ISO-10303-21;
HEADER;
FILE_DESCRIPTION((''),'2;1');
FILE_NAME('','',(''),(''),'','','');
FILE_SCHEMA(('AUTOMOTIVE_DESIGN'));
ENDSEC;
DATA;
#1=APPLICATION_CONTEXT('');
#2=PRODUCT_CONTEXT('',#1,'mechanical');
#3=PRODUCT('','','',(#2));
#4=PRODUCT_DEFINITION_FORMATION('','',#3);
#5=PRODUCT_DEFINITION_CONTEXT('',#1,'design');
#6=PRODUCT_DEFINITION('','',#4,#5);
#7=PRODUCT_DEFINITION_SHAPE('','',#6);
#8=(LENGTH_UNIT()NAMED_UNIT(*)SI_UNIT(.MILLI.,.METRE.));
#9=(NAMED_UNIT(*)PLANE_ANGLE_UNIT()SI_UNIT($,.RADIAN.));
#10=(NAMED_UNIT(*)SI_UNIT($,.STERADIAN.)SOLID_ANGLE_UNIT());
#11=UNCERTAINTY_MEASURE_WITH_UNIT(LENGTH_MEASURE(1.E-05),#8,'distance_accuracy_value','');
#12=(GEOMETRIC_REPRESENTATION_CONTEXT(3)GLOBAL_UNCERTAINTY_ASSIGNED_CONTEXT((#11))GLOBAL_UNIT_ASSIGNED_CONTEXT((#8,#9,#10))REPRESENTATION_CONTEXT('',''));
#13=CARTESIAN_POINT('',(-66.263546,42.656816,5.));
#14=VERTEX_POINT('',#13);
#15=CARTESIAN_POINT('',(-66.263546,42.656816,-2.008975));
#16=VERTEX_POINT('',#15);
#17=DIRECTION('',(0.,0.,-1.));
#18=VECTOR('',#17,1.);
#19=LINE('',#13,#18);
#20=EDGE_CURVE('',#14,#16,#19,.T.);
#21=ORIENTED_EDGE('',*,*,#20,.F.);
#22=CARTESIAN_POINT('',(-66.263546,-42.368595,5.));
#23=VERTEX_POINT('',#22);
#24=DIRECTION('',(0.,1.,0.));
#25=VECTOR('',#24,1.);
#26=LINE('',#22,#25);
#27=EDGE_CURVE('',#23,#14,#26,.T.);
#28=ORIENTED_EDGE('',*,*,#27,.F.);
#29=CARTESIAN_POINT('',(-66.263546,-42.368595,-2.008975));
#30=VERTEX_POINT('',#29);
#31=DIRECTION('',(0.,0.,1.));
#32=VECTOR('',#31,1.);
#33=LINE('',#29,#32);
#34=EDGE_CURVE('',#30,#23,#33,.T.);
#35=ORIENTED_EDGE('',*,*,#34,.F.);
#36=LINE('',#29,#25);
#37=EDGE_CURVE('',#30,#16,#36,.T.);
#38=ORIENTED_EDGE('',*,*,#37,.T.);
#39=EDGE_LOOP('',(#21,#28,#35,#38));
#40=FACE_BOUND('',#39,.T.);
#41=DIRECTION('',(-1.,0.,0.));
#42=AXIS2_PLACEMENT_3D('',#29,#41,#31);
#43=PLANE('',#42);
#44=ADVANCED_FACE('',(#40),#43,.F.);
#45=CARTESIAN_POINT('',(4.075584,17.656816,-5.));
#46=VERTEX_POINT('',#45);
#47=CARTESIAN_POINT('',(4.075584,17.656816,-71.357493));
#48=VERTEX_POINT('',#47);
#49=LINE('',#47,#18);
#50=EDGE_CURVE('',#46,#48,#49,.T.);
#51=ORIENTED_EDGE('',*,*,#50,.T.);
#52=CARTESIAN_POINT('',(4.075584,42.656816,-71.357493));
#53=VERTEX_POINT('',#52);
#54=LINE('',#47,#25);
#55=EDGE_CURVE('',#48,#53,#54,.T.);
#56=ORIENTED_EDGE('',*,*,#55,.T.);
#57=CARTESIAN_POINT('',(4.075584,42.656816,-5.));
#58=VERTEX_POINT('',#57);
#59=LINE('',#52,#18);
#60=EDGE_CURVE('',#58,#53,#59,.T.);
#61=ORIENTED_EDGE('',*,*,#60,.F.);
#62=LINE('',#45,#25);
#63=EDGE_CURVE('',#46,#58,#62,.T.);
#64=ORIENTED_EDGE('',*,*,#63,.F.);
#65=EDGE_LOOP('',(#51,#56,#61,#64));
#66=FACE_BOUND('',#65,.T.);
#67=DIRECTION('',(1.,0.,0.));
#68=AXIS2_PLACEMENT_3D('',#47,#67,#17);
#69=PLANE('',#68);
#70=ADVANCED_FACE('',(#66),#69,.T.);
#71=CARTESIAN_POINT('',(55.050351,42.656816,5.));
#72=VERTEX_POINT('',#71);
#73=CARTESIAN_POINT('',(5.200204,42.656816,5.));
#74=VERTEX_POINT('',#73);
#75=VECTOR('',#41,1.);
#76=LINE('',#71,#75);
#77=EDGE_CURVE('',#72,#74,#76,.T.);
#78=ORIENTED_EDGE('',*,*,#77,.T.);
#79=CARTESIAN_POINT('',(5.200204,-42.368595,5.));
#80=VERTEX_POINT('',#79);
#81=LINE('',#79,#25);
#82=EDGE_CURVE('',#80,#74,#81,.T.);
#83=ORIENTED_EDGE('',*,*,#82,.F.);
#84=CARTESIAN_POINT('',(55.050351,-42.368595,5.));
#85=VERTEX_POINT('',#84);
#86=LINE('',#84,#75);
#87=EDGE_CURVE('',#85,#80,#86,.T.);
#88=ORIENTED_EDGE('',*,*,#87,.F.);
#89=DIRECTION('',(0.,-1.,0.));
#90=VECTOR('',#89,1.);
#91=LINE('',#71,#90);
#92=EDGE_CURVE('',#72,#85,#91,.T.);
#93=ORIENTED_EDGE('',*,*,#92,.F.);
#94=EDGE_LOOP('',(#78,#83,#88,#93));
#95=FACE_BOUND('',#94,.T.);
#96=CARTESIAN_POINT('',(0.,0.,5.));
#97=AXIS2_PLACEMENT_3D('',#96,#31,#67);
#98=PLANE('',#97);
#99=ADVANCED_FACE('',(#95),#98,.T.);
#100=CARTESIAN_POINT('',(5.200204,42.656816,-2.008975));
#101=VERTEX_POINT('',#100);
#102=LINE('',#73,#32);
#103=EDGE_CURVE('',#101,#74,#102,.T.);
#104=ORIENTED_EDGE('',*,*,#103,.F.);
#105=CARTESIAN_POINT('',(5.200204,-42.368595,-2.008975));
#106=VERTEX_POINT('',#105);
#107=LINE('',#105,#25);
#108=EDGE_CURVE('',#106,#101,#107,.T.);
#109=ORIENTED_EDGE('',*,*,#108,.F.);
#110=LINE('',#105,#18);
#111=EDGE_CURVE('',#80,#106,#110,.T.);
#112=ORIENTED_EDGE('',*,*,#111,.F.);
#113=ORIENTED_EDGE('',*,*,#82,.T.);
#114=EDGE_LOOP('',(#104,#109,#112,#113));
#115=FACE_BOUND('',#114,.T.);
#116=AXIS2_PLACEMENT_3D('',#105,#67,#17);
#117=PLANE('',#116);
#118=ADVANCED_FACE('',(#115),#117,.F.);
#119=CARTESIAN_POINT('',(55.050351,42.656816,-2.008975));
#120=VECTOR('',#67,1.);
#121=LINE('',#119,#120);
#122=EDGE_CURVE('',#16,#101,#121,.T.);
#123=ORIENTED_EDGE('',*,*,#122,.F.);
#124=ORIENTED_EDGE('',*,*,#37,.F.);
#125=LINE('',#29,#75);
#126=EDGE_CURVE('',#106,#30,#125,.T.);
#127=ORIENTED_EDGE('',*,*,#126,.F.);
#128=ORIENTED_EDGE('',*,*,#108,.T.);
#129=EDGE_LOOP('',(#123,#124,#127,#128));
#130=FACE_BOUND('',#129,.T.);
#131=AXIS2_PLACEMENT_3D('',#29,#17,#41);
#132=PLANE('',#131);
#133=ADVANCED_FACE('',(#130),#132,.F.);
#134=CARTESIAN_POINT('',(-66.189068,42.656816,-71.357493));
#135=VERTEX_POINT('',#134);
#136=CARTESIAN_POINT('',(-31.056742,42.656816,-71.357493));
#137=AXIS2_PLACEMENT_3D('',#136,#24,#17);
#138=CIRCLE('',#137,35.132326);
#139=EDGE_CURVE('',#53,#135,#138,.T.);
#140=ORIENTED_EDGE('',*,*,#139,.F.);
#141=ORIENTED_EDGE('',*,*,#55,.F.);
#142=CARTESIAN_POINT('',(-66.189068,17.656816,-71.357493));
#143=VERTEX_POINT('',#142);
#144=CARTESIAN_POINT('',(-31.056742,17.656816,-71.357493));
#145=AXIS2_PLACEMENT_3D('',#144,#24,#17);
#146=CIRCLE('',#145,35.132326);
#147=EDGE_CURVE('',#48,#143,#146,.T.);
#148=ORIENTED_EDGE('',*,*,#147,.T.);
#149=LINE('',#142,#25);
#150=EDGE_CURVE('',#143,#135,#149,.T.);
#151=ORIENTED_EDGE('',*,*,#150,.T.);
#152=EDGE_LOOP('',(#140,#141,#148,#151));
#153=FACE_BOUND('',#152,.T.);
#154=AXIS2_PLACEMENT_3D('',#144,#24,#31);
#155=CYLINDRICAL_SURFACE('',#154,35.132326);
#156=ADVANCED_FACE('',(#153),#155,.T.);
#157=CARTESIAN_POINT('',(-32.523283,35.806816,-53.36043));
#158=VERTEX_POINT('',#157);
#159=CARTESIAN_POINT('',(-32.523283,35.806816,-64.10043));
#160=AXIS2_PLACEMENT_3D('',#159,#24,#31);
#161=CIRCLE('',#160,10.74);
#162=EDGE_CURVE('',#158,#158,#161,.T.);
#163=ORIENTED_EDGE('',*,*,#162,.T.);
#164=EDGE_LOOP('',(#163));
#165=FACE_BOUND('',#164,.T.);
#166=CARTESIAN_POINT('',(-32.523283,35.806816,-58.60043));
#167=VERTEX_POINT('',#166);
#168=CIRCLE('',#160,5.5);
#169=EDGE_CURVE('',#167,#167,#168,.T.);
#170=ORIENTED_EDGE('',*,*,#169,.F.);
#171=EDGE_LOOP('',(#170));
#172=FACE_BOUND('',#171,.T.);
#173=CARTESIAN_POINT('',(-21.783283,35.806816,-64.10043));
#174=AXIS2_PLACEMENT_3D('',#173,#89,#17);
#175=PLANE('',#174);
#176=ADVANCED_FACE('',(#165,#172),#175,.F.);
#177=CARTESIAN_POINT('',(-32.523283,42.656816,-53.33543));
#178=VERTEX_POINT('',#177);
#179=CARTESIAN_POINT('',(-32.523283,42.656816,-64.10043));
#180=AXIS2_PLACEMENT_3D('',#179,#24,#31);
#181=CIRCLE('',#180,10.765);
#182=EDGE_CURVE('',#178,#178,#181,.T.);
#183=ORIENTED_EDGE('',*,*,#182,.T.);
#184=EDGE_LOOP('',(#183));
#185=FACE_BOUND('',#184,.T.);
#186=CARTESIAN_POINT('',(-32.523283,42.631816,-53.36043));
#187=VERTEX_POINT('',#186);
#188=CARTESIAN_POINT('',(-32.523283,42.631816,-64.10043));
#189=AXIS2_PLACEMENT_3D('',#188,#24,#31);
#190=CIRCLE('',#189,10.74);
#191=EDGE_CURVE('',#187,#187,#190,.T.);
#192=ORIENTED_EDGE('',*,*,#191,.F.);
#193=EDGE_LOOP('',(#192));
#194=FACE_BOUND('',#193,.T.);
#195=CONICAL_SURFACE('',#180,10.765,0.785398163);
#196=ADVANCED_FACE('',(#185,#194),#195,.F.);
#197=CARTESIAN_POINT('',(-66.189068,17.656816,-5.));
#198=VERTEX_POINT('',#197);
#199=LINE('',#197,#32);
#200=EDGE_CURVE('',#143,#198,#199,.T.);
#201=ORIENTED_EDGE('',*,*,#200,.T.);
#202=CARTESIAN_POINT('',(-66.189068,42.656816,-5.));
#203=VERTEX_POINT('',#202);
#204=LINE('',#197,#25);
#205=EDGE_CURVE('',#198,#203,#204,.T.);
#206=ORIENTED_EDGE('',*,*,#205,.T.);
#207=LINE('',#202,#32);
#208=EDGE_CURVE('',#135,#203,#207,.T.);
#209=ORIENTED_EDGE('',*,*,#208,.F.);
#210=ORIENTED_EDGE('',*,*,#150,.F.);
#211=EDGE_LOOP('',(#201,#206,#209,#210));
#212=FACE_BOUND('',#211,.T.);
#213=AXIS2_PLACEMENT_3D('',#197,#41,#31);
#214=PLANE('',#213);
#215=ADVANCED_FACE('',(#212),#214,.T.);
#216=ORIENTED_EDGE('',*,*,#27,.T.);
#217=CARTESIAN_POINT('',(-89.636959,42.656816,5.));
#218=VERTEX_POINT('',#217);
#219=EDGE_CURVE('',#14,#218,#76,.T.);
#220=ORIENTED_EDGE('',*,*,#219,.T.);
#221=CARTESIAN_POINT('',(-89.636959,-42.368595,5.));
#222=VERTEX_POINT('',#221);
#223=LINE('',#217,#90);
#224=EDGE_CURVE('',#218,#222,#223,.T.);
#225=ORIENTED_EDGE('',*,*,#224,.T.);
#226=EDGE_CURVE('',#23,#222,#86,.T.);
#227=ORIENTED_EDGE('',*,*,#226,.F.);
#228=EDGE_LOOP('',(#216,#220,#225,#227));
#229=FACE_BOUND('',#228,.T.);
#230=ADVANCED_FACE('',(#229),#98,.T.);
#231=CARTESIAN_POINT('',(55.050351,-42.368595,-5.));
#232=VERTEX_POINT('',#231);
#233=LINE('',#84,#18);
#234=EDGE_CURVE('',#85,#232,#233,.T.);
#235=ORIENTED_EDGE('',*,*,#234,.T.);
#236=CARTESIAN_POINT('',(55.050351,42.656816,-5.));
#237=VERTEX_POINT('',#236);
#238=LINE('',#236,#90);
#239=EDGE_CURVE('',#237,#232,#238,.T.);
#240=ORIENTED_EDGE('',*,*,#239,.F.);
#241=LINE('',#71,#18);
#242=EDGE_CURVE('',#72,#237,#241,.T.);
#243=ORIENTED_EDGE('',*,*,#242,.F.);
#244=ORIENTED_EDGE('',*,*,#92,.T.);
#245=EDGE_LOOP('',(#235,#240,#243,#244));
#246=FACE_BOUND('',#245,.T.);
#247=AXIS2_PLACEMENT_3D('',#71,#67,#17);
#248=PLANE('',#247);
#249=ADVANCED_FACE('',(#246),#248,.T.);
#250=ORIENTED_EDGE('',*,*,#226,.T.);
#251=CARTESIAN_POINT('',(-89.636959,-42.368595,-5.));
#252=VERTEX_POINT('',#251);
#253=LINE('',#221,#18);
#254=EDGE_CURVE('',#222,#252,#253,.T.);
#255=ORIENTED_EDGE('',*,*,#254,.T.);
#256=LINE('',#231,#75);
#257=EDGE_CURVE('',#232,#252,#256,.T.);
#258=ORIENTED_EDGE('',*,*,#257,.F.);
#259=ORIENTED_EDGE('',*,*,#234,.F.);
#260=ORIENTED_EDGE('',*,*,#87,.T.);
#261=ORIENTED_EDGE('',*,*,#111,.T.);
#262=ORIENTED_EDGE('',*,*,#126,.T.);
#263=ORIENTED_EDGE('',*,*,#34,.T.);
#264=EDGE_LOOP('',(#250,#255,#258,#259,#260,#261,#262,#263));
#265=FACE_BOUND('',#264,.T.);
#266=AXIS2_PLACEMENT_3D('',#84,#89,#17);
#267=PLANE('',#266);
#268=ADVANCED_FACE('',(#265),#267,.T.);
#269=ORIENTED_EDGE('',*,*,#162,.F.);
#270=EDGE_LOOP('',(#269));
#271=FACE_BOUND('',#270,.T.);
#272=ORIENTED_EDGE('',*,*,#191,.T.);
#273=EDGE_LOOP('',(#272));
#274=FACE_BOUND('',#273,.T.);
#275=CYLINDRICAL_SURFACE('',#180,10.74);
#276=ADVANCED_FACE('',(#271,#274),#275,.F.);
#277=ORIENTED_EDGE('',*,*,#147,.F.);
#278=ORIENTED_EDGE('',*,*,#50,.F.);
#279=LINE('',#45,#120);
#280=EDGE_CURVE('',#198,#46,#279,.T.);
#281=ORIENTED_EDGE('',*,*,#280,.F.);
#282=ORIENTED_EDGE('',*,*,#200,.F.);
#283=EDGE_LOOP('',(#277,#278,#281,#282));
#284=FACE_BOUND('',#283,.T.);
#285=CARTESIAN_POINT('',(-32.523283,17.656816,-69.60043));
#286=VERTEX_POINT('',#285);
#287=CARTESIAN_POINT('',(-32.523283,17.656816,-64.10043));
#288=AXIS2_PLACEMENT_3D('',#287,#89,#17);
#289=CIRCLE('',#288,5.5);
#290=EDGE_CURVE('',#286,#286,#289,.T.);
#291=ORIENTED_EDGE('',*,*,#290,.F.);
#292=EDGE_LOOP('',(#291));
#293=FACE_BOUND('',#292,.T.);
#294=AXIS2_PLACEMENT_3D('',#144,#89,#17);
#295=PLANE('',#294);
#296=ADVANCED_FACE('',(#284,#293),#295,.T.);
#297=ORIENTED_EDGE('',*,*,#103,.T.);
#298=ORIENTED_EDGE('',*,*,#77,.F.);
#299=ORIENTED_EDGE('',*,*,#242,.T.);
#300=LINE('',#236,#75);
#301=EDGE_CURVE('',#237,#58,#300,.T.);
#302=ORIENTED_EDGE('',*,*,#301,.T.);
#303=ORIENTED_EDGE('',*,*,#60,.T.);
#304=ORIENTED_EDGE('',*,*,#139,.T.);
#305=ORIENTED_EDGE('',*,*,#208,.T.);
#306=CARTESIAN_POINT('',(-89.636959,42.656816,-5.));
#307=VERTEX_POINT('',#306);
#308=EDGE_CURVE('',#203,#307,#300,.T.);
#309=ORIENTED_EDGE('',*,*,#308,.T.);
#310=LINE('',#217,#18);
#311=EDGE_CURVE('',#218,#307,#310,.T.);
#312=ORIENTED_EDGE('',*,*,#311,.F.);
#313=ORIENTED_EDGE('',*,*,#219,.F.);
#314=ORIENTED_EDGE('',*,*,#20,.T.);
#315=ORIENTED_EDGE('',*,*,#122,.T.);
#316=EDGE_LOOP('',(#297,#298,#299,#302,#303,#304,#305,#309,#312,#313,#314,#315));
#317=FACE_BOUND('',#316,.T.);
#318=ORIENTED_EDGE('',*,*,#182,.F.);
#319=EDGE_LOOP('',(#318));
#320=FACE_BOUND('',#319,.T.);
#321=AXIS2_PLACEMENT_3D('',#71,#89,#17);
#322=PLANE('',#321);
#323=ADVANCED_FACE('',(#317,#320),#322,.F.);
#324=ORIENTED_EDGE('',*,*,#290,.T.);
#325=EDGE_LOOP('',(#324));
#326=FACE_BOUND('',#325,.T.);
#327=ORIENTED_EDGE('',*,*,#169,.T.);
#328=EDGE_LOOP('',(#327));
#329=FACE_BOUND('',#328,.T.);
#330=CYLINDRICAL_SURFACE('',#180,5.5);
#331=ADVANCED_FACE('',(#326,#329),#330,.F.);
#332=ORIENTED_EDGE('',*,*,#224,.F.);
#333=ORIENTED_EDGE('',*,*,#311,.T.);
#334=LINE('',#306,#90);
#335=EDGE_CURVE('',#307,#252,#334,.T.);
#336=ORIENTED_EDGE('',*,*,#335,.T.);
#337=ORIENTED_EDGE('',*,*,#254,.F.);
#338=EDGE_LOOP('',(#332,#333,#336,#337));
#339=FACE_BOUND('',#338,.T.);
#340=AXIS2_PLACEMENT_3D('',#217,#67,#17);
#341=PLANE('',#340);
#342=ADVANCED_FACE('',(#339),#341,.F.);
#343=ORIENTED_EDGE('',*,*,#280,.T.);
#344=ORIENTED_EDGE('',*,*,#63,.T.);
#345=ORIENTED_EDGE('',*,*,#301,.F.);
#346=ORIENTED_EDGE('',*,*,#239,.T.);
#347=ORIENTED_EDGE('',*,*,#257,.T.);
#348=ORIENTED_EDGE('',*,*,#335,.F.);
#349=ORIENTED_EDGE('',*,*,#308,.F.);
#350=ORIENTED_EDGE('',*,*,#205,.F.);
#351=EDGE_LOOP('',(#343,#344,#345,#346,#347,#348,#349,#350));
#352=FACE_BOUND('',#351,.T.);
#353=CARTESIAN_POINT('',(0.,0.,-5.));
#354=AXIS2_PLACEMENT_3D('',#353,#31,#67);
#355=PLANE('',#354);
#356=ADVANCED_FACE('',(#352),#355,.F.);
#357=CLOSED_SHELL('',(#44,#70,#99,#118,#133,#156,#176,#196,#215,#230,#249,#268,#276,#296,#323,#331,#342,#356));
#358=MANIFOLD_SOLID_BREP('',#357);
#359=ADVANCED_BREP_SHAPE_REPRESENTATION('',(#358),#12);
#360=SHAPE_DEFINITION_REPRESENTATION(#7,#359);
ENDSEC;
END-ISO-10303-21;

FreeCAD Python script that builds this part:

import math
import FreeCAD as App
import Part
import Sketcher

V = App.Vector
Q = App.Units.Quantity

doc = App.newDocument("Part")
body = doc.addObject("PartDesign::Body", "Body")

# Sketch on XY plane
sketch1 = body.newObject("Sketcher::SketchObject", "Sketch")
sketch1.AttachmentSupport = (doc.getObject("XY_Plane"), [""])
sketch1.MapMode = "FlatFace"
sketch1.addGeometry([
    Part.LineSegment(V(-89.636959, 42.656816, 0), V(-89.636959, -42.368595, 0)),
    Part.LineSegment(V(-89.636959, -42.368595, 0), V(55.050351, -42.368595, 0)),
    Part.LineSegment(V(55.050351, -42.368595, 0), V(55.050351, 42.656816, 0)),
    Part.LineSegment(V(55.050351, 42.656816, 0), V(-89.636959, 42.656816, 0)),
], False)
sketch1.addConstraint([
    Sketcher.Constraint("Coincident", 0, 2, 1, 1),
    Sketcher.Constraint("Coincident", 1, 2, 2, 1),
    Sketcher.Constraint("Coincident", 2, 2, 3, 1),
    Sketcher.Constraint("Coincident", 3, 2, 0, 1),
    Sketcher.Constraint("Vertical", 0),
    Sketcher.Constraint("Horizontal", 1),
    Sketcher.Constraint("Vertical", 2),
    Sketcher.Constraint("Horizontal", 3),
    Sketcher.Constraint("DistanceX", 1, 1, 1, 2, Q("144.687309 mm")),
    Sketcher.Constraint("DistanceY", 0, 2, 0, 1, Q("85.025411 mm")),
    Sketcher.Constraint("DistanceX", 0, 2, -1, 1, Q("89.636959 mm")),
    Sketcher.Constraint("DistanceY", 0, 2, -1, 1, Q("42.368595 mm")),
])
pad1 = body.newObject("PartDesign::Pad", "Pad")
pad1.Profile = sketch1
pad1.Length = 10
pad1.Midplane = True

# Sketch on XZ plane
sketch2 = body.newObject("Sketcher::SketchObject", "Sketch001")
sketch2.AttachmentSupport = (doc.getObject("XZ_Plane"), [""])
sketch2.MapMode = "FlatFace"
sketch2.AttachmentOffset = App.Placement(V(0, 0, -42.656816), App.Rotation())
sketch2.addGeometry([
    Part.LineSegment(V(-66.189068, -71.357493, 0), V(-66.189068, -5, 0)),
    Part.LineSegment(V(-66.189068, -5, 0), V(4.075584, -5, 0)),
    Part.LineSegment(V(4.075584, -5, 0), V(4.075584, -71.357493, 0)),
    Part.ArcOfCircle(Part.Circle(V(-31.056742, -71.357493, 0), V(0, 0, 1), 35.132326), math.radians(180), math.radians(360)),
], False)
sketch2.addConstraint([
    Sketcher.Constraint("Coincident", 0, 2, 1, 1),
    Sketcher.Constraint("Coincident", 1, 2, 2, 1),
    Sketcher.Constraint("Tangent", 2, 2, 3, 2),
    Sketcher.Constraint("Tangent", 3, 1, 0, 1),
    Sketcher.Constraint("Vertical", 0),
    Sketcher.Constraint("Horizontal", 1),
    Sketcher.Constraint("Vertical", 2),
    Sketcher.Constraint("DistanceY", 0, 2, -1, 1, Q("5 mm")),
    Sketcher.Constraint("Radius", 3, Q("35.132326 mm")),
    Sketcher.Constraint("DistanceY", 0, 1, 0, 2, Q("66.357493 mm")),
    Sketcher.Constraint("DistanceX", 0, 2, -1, 1, Q("66.189068 mm")),
])
pad2 = body.newObject("PartDesign::Pad", "Pad001")
pad2.Profile = sketch2
pad2.Length = 25

# Sketch on YZ plane
sketch3 = body.newObject("Sketcher::SketchObject", "Sketch002")
sketch3.AttachmentSupport = (doc.getObject("YZ_Plane"), [""])
sketch3.MapMode = "FlatFace"
sketch3.AttachmentOffset = App.Placement(V(0, 0, -32.523283), App.Rotation())
sketch3.addGeometry([
    Part.LineSegment(V(-42.368595, -64.10043, 0), V(42.656816, -64.10043, 0)),  # 0
    Part.LineSegment(V(42.656816, -64.10043, 0), V(42.656816, -53.33543, 0)),  # 1
    Part.LineSegment(V(42.656816, -53.33543, 0), V(42.631816, -53.36043, 0)),  # 2
    Part.LineSegment(V(42.631816, -53.36043, 0), V(35.806816, -53.36043, 0)),  # 3
    Part.LineSegment(V(35.806816, -53.36043, 0), V(35.806816, -58.60043, 0)),  # 4
    Part.LineSegment(V(35.806816, -58.60043, 0), V(-42.368595, -58.60043, 0)),  # 5
    Part.LineSegment(V(-42.368595, -58.60043, 0), V(-42.368595, -64.10043, 0)),  # 6
], False)
sketch3.addGeometry(Part.LineSegment(V(42.656816, -64.10043, 0), V(-42.368595, -64.10043, 0)), True)  # axis
sketch3.addConstraint([
    Sketcher.Constraint("Coincident", 0, 2, 1, 1),
    Sketcher.Constraint("Coincident", 1, 2, 2, 1),
    Sketcher.Constraint("Coincident", 2, 2, 3, 1),
    Sketcher.Constraint("Coincident", 3, 2, 4, 1),
    Sketcher.Constraint("Coincident", 4, 2, 5, 1),
    Sketcher.Constraint("Coincident", 5, 2, 6, 1),
    Sketcher.Constraint("Coincident", 6, 2, 0, 1),
    Sketcher.Constraint("Horizontal", 0),
    Sketcher.Constraint("Vertical", 1),
    Sketcher.Constraint("Horizontal", 3),
    Sketcher.Constraint("Vertical", 4),
    Sketcher.Constraint("Horizontal", 5),
    Sketcher.Constraint("Vertical", 6),
    Sketcher.Constraint("Horizontal", 7),
    Sketcher.Constraint("Coincident", 7, 1, 0, 2),
    Sketcher.Constraint("Vertical", 5, 2, 7, 2),
    Sketcher.Constraint("Angle", 2, Q("-135 deg")),
    Sketcher.Constraint("DistanceY", 6, 2, 6, 1, Q("5.5 mm")),
    Sketcher.Constraint("DistanceY", 4, 2, 4, 1, Q("5.24 mm")),
    Sketcher.Constraint("DistanceX", 3, 2, 3, 1, Q("6.825 mm")),
    Sketcher.Constraint("DistanceY", 1, 1, 1, 2, Q("10.765 mm")),
    Sketcher.Constraint("DistanceX", 0, 1, 0, 2, Q("85.025411 mm")),
    Sketcher.Constraint("DistanceY", 0, 2, -1, 1, Q("64.10043 mm")),
    Sketcher.Constraint("DistanceX", -1, 1, 0, 2, Q("42.656816 mm")),
])
groove = body.newObject("PartDesign::Groove", "Groove")
groove.Profile = sketch3
groove.ReferenceAxis = (sketch3, ["Axis0"])
groove.Angle = 360

# Sketch on XZ plane
sketch4 = body.newObject("Sketcher::SketchObject", "Sketch003")
sketch4.AttachmentSupport = (doc.getObject("XZ_Plane"), [""])
sketch4.MapMode = "FlatFace"
sketch4.AttachmentOffset = App.Placement(V(0, 0, -42.656816), App.Rotation())
sketch4.addGeometry([
    Part.LineSegment(V(-66.263546, -2.008975, 0), V(-66.263546, 5, 0)),
    Part.LineSegment(V(-66.263546, 5, 0), V(5.200204, 5, 0)),
    Part.LineSegment(V(5.200204, 5, 0), V(5.200204, -2.008975, 0)),
    Part.LineSegment(V(5.200204, -2.008975, 0), V(-66.263546, -2.008975, 0)),
], False)
sketch4.addConstraint([
    Sketcher.Constraint("Coincident", 0, 2, 1, 1),
    Sketcher.Constraint("Coincident", 1, 2, 2, 1),
    Sketcher.Constraint("Coincident", 2, 2, 3, 1),
    Sketcher.Constraint("Coincident", 3, 2, 0, 1),
    Sketcher.Constraint("Vertical", 0),
    Sketcher.Constraint("Horizontal", 1),
    Sketcher.Constraint("Vertical", 2),
    Sketcher.Constraint("Horizontal", 3),
    Sketcher.Constraint("DistanceY", -1, 1, 0, 2, Q("5 mm")),
    Sketcher.Constraint("DistanceX", 1, 1, 1, 2, Q("71.46375 mm")),
    Sketcher.Constraint("DistanceY", 0, 1, 0, 2, Q("7.008975 mm")),
    Sketcher.Constraint("DistanceX", 0, 2, -1, 1, Q("66.263546 mm")),
])
pocket1 = body.newObject("PartDesign::Pocket", "Pocket")
pocket1.Profile = sketch4
pocket1.Type = "ThroughAll"
pocket1.Midplane = True

doc.recompute()
